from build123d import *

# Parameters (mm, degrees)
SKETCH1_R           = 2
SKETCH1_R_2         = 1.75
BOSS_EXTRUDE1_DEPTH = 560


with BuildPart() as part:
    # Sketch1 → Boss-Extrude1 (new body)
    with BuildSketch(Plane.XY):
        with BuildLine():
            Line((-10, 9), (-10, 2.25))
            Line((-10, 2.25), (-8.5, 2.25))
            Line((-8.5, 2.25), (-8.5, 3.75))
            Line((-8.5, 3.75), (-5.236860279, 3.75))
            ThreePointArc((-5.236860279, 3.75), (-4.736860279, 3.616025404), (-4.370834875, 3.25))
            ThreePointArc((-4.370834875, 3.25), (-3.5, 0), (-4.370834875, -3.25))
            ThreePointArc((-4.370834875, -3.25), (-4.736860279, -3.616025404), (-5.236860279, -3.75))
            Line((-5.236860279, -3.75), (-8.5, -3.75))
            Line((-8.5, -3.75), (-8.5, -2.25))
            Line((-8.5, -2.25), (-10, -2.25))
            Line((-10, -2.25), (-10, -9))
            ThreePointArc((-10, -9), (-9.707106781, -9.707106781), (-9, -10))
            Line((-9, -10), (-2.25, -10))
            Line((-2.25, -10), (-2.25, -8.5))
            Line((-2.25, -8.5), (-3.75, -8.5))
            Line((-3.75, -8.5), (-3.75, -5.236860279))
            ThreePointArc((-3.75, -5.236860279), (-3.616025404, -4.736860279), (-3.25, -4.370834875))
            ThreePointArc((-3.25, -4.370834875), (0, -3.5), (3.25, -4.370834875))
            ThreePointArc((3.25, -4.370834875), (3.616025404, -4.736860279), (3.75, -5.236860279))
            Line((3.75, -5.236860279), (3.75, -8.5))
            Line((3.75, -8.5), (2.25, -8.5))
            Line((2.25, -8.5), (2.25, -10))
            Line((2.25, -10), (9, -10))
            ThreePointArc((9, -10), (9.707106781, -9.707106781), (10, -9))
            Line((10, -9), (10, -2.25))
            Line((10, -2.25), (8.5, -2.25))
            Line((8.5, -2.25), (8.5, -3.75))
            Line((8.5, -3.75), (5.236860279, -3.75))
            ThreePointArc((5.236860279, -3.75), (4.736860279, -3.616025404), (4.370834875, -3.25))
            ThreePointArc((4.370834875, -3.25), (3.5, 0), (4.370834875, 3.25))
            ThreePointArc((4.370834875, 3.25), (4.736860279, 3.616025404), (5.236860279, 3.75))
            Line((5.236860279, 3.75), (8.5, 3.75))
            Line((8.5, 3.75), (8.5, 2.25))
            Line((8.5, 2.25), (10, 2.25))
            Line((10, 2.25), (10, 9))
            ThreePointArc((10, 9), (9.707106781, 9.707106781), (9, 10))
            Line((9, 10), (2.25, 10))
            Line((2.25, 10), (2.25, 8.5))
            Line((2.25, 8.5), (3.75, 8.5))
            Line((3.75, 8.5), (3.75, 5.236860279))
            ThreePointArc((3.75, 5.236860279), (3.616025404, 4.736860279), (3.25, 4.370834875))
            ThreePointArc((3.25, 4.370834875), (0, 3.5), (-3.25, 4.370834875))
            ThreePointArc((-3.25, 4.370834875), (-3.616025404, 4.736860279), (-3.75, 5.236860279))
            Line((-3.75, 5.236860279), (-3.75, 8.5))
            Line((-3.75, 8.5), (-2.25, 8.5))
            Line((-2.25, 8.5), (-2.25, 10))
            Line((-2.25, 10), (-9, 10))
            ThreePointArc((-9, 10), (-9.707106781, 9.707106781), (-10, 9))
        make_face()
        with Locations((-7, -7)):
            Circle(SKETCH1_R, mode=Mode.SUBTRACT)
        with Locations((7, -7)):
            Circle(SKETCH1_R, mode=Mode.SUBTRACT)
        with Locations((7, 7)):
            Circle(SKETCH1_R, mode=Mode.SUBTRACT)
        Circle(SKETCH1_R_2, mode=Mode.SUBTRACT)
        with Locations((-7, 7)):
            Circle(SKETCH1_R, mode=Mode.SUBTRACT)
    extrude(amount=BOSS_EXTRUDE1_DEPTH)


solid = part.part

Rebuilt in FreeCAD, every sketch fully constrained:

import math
import FreeCAD as App
import Part
import Sketcher
Q = App.Units.Quantity

doc = App.newDocument("Part")
body = doc.addObject("PartDesign::Body", "Body")

# Sketch on XY plane
sketch1 = body.newObject("Sketcher::SketchObject", "Sketch")
sketch1.AttachmentSupport = (doc.getObject("XY_Plane"), [""])
sketch1.MapMode = "FlatFace"
sketch1.addGeometry([
    Part.LineSegment(App.Vector(-10, 9, 0), App.Vector(-10, 2.2, 0)),  # 0
    Part.LineSegment(App.Vector(-10, 2.2, 0), App.Vector(-8.5, 2.2, 0)),  # 1
    Part.LineSegment(App.Vector(-8.5, 2.2, 0), App.Vector(-8.5, 3.8, 0)),  # 2
    Part.LineSegment(App.Vector(-8.5, 3.8, 0), App.Vector(-5.2, 3.8, 0)),  # 3
    Part.ArcOfCircle(Part.Circle(App.Vector(-5.2, 2.8, 0), App.Vector(0, 0, 1), 1), math.radians(30), math.radians(90)),  # 4
    Part.ArcOfCircle(Part.Circle(App.Vector(-10, 0, 0), App.Vector(0, 0, 1), 6.5), math.radians(-30), math.radians(30)),  # 5
    Part.ArcOfCircle(Part.Circle(App.Vector(-5.2, -2.8, 0), App.Vector(0, 0, 1), 1), math.radians(-90), math.radians(-30)),  # 6
    Part.LineSegment(App.Vector(-5.2, -3.8, 0), App.Vector(-8.5, -3.8, 0)),  # 7
    Part.LineSegment(App.Vector(-8.5, -3.8, 0), App.Vector(-8.5, -2.2, 0)),  # 8
    Part.LineSegment(App.Vector(-8.5, -2.2, 0), App.Vector(-10, -2.2, 0)),  # 9
    Part.LineSegment(App.Vector(-10, -2.2, 0), App.Vector(-10, -9, 0)),  # 10
    Part.ArcOfCircle(Part.Circle(App.Vector(-9, -9, 0), App.Vector(0, 0, 1), 1), math.radians(-180), math.radians(-90)),  # 11
    Part.LineSegment(App.Vector(-9, -10, 0), App.Vector(-2.2, -10, 0)),  # 12
    Part.LineSegment(App.Vector(-2.2, -10, 0), App.Vector(-2.2, -8.5, 0)),  # 13
    Part.LineSegment(App.Vector(-2.2, -8.5, 0), App.Vector(-3.8, -8.5, 0)),  # 14
    Part.LineSegment(App.Vector(-3.8, -8.5, 0), App.Vector(-3.8, -5.2, 0)),  # 15
    Part.ArcOfCircle(Part.Circle(App.Vector(-2.8, -5.2, 0), App.Vector(0, 0, 1), 1), math.radians(120), math.radians(180)),  # 16
    Part.ArcOfCircle(Part.Circle(App.Vector(0, -10, 0), App.Vector(0, 0, 1), 6.5), math.radians(60), math.radians(120)),  # 17
    Part.ArcOfCircle(Part.Circle(App.Vector(2.8, -5.2, 0), App.Vector(0, 0, 1), 1), math.radians(0), math.radians(60)),  # 18
    Part.LineSegment(App.Vector(3.8, -5.2, 0), App.Vector(3.8, -8.5, 0)),  # 19
    Part.LineSegment(App.Vector(3.8, -8.5, 0), App.Vector(2.2, -8.5, 0)),  # 20
    Part.LineSegment(App.Vector(2.2, -8.5, 0), App.Vector(2.2, -10, 0)),  # 21
    Part.LineSegment(App.Vector(2.2, -10, 0), App.Vector(9, -10, 0)),  # 22
    Part.ArcOfCircle(Part.Circle(App.Vector(9, -9, 0), App.Vector(0, 0, 1), 1), math.radians(-90), math.radians(0)),  # 23
    Part.LineSegment(App.Vector(10, -9, 0), App.Vector(10, -2.2, 0)),  # 24
    Part.LineSegment(App.Vector(10, -2.2, 0), App.Vector(8.5, -2.2, 0)),  # 25
    Part.LineSegment(App.Vector(8.5, -2.2, 0), App.Vector(8.5, -3.8, 0)),  # 26
    Part.LineSegment(App.Vector(8.5, -3.8, 0), App.Vector(5.2, -3.8, 0)),  # 27
    Part.ArcOfCircle(Part.Circle(App.Vector(5.2, -2.8, 0), App.Vector(0, 0, 1), 1), math.radians(-150), math.radians(-90)),  # 28
    Part.ArcOfCircle(Part.Circle(App.Vector(10, 0, 0), App.Vector(0, 0, 1), 6.5), math.radians(150), math.radians(210)),  # 29
    Part.ArcOfCircle(Part.Circle(App.Vector(5.2, 2.8, 0), App.Vector(0, 0, 1), 1), math.radians(90), math.radians(150)),  # 30
    Part.LineSegment(App.Vector(5.2, 3.8, 0), App.Vector(8.5, 3.8, 0)),  # 31
    Part.LineSegment(App.Vector(8.5, 3.8, 0), App.Vector(8.5, 2.2, 0)),  # 32
    Part.LineSegment(App.Vector(8.5, 2.2, 0), App.Vector(10, 2.2, 0)),  # 33
    Part.LineSegment(App.Vector(10, 2.2, 0), App.Vector(10, 9, 0)),  # 34
    Part.ArcOfCircle(Part.Circle(App.Vector(9, 9, 0), App.Vector(0, 0, 1), 1), math.radians(0), math.radians(90)),  # 35
    Part.LineSegment(App.Vector(9, 10, 0), App.Vector(2.2, 10, 0)),  # 36
    Part.LineSegment(App.Vector(2.2, 10, 0), App.Vector(2.2, 8.5, 0)),  # 37
    Part.LineSegment(App.Vector(2.2, 8.5, 0), App.Vector(3.8, 8.5, 0)),  # 38
    Part.LineSegment(App.Vector(3.8, 8.5, 0), App.Vector(3.8, 5.2, 0)),  # 39
    Part.ArcOfCircle(Part.Circle(App.Vector(2.8, 5.2, 0), App.Vector(0, 0, 1), 1), math.radians(-60), math.radians(0)),  # 40
    Part.ArcOfCircle(Part.Circle(App.Vector(0, 10, 0), App.Vector(0, 0, 1), 6.5), math.radians(-120), math.radians(-60)),  # 41
    Part.ArcOfCircle(Part.Circle(App.Vector(-2.8, 5.2, 0), App.Vector(0, 0, 1), 1), math.radians(180), math.radians(240)),  # 42
    Part.LineSegment(App.Vector(-3.8, 5.2, 0), App.Vector(-3.8, 8.5, 0)),  # 43
    Part.LineSegment(App.Vector(-3.8, 8.5, 0), App.Vector(-2.2, 8.5, 0)),  # 44
    Part.LineSegment(App.Vector(-2.2, 8.5, 0), App.Vector(-2.2, 10, 0)),  # 45
    Part.LineSegment(App.Vector(-2.2, 10, 0), App.Vector(-9, 10, 0)),  # 46
    Part.ArcOfCircle(Part.Circle(App.Vector(-9, 9, 0), App.Vector(0, 0, 1), 1), math.radians(90), math.radians(180)),  # 47
    Part.Circle(App.Vector(-7, -7, 0), App.Vector(0, 0, 1), 2),  # 48
    Part.Circle(App.Vector(7, -7, 0), App.Vector(0, 0, 1), 2),  # 49
    Part.Circle(App.Vector(-7, 7, 0), App.Vector(0, 0, 1), 2),  # 50
    Part.Circle(App.Vector(0, 0, 0), App.Vector(0, 0, 1), 1.8),  # 51
    Part.Circle(App.Vector(7, 7, 0), App.Vector(0, 0, 1), 2),  # 52
], False)
sketch1.addConstraint([
    Sketcher.Constraint("Coincident", 0, 2, 1, 1),
    Sketcher.Constraint("Coincident", 1, 2, 2, 1),
    Sketcher.Constraint("Coincident", 2, 2, 3, 1),
    Sketcher.Constraint("Tangent", 3, 2, 4, 2),
    Sketcher.Constraint("Tangent", 4, 1, 5, 2),
    Sketcher.Constraint("Tangent", 5, 1, 6, 2),
    Sketcher.Constraint("Tangent", 6, 1, 7, 1),
    Sketcher.Constraint("Coincident", 7, 2, 8, 1),
    Sketcher.Constraint("Coincident", 8, 2, 9, 1),
    Sketcher.Constraint("Coincident", 9, 2, 10, 1),
    Sketcher.Constraint("Tangent", 10, 2, 11, 1),
    Sketcher.Constraint("Tangent", 11, 2, 12, 1),
    Sketcher.Constraint("Coincident", 12, 2, 13, 1),
    Sketcher.Constraint("Coincident", 13, 2, 14, 1),
    Sketcher.Constraint("Coincident", 14, 2, 15, 1),
    Sketcher.Constraint("Tangent", 15, 2, 16, 2),
    Sketcher.Constraint("Tangent", 16, 1, 17, 2),
    Sketcher.Constraint("Tangent", 17, 1, 18, 2),
    Sketcher.Constraint("Tangent", 18, 1, 19, 1),
    Sketcher.Constraint("Coincident", 19, 2, 20, 1),
    Sketcher.Constraint("Coincident", 20, 2, 21, 1),
    Sketcher.Constraint("Coincident", 21, 2, 22, 1),
    Sketcher.Constraint("Tangent", 22, 2, 23, 1),
    Sketcher.Constraint("Tangent", 23, 2, 24, 1),
    Sketcher.Constraint("Coincident", 24, 2, 25, 1),
    Sketcher.Constraint("Coincident", 25, 2, 26, 1),
    Sketcher.Constraint("Coincident", 26, 2, 27, 1),
    Sketcher.Constraint("Tangent", 27, 2, 28, 2),
    Sketcher.Constraint("Tangent", 28, 1, 29, 2),
    Sketcher.Constraint("Tangent", 29, 1, 30, 2),
    Sketcher.Constraint("Tangent", 30, 1, 31, 1),
    Sketcher.Constraint("Coincident", 31, 2, 32, 1),
    Sketcher.Constraint("Coincident", 32, 2, 33, 1),
    Sketcher.Constraint("Coincident", 33, 2, 34, 1),
    Sketcher.Constraint("Tangent", 34, 2, 35, 1),
    Sketcher.Constraint("Tangent", 35, 2, 36, 1),
    Sketcher.Constraint("Coincident", 36, 2, 37, 1),
    Sketcher.Constraint("Coincident", 37, 2, 38, 1),
    Sketcher.Constraint("Coincident", 38, 2, 39, 1),
    Sketcher.Constraint("Tangent", 39, 2, 40, 2),
    Sketcher.Constraint("Tangent", 40, 1, 41, 2),
    Sketcher.Constraint("Tangent", 41, 1, 42, 2),
    Sketcher.Constraint("Tangent", 42, 1, 43, 1),
    Sketcher.Constraint("Coincident", 43, 2, 44, 1),
    Sketcher.Constraint("Coincident", 44, 2, 45, 1),
    Sketcher.Constraint("Coincident", 45, 2, 46, 1),
    Sketcher.Constraint("Tangent", 46, 2, 47, 1),
    Sketcher.Constraint("Tangent", 47, 2, 0, 1),
    Sketcher.Constraint("Vertical", 0),
    Sketcher.Constraint("Horizontal", 1),
    Sketcher.Constraint("Vertical", 2),
    Sketcher.Constraint("Horizontal", 3),
    Sketcher.Constraint("Horizontal", 7),
    Sketcher.Constraint("Vertical", 8),
    Sketcher.Constraint("Horizontal", 9),
    Sketcher.Constraint("Vertical", 10),
    Sketcher.Constraint("Horizontal", 12),
    Sketcher.Constraint("Vertical", 13),
    Sketcher.Constraint("Horizontal", 14),
    Sketcher.Constraint("Vertical", 15),
    Sketcher.Constraint("Vertical", 19),
    Sketcher.Constraint("Horizontal", 20),
    Sketcher.Constraint("Vertical", 21),
    Sketcher.Constraint("Horizontal", 22),
    Sketcher.Constraint("Vertical", 24),
    Sketcher.Constraint("Horizontal", 25),
    Sketcher.Constraint("Vertical", 26),
    Sketcher.Constraint("Horizontal", 27),
    Sketcher.Constraint("Horizontal", 31),
    Sketcher.Constraint("Vertical", 32),
    Sketcher.Constraint("Horizontal", 33),
    Sketcher.Constraint("Vertical", 34),
    Sketcher.Constraint("Horizontal", 36),
    Sketcher.Constraint("Vertical", 37),
    Sketcher.Constraint("Horizontal", 38),
    Sketcher.Constraint("Vertical", 39),
    Sketcher.Constraint("Vertical", 43),
    Sketcher.Constraint("Horizontal", 44),
    Sketcher.Constraint("Vertical", 45),
    Sketcher.Constraint("Horizontal", 46),
    Sketcher.Constraint("Coincident", 51, 3, -1, 1),
    Sketcher.Constraint("Equal", 4, 6),
    Sketcher.Constraint("Equal", 6, 11),
    Sketcher.Constraint("Equal", 11, 16),
    Sketcher.Constraint("Equal", 5, 17),
    Sketcher.Constraint("Equal", 16, 18),
    Sketcher.Constraint("Equal", 18, 23),
    Sketcher.Constraint("Equal", 23, 28),
    Sketcher.Constraint("Equal", 17, 29),
    Sketcher.Constraint("Equal", 28, 30),
    Sketcher.Constraint("Equal", 30, 35),
    Sketcher.Constraint("Equal", 35, 40),
    Sketcher.Constraint("Equal", 29, 41),
    Sketcher.Constraint("Equal", 40, 42),
    Sketcher.Constraint("Equal", 42, 47),
    Sketcher.Constraint("Equal", 48, 49),
    Sketcher.Constraint("Equal", 49, 50),
    Sketcher.Constraint("Equal", 50, 52),
    Sketcher.Constraint("Symmetric", 4, 3, 28, 3, -1, 1),
    Sketcher.Constraint("Symmetric", 6, 3, 30, 3, -1, 1),
    Sketcher.Constraint("Symmetric", 11, 3, 35, 3, -1, 1),
    Sketcher.Constraint("Symmetric", 16, 3, 40, 3, -1, 1),
    Sketcher.Constraint("Symmetric", 18, 3, 42, 3, -1, 1),
    Sketcher.Constraint("Symmetric", 23, 3, 47, 3, -1, 1),
    Sketcher.Constraint("Symmetric", 49, 3, 50, 3, -1, 1),
    Sketcher.Constraint("Symmetric", 48, 3, 52, 3, -1, 1),
    Sketcher.Constraint("Symmetric", 1, 2, 25, 2, -1, 1),
    Sketcher.Constraint("Symmetric", 8, 2, 32, 2, -1, 1),
    Sketcher.Constraint("Symmetric", 13, 2, 37, 2, -1, 1),
    Sketcher.Constraint("Symmetric", 20, 2, 44, 2, -1, 1),
    Sketcher.Constraint("Symmetric", 16, 3, 18, 3, -2),
    Sketcher.Constraint("Symmetric", 11, 3, 23, 3, -2),
    Sketcher.Constraint("Symmetric", 6, 3, 28, 3, -2),
    Sketcher.Constraint("Symmetric", 48, 3, 49, 3, -2),
    Sketcher.Constraint("Symmetric", 13, 2, 20, 2, -2),
    Sketcher.Constraint("Symmetric", 8, 2, 25, 2, -2),
    Sketcher.Constraint("Horizontal", 17, 3, 11, 2),
    Sketcher.Constraint("Vertical", 5, 3, 0, 2),
    Sketcher.Constraint("Equal", 9, 14),
    Sketcher.Constraint("Equal", 46, 0),
    Sketcher.Constraint("Equal", 44, 2),
    Sketcher.Constraint("Equal", 8, 13),
    Sketcher.Constraint("Equal", 31, 15),
    Sketcher.Constraint("Diameter", 48, Q("4 mm")),
    Sketcher.Constraint("Radius", 4, Q("1 mm")),
    Sketcher.Constraint("Diameter", 51, Q("3.5 mm")),
    Sketcher.Constraint("Radius", 5, Q("6.5 mm")),
    Sketcher.Constraint("DistanceX", 1, 1, 1, 2, Q("1.5 mm")),
    Sketcher.Constraint("DistanceX", 5, 3, -1, 1, Q("10 mm")),
    Sketcher.Constraint("DistanceX", 48, 3, -1, 1, Q("7 mm")),
    Sketcher.Constraint("DistanceY", 48, 3, -1, 1, Q("7 mm")),
    Sketcher.Constraint("DistanceX", 12, 1, 12, 2, Q("6.75 mm")),
])
pad1 = body.newObject("PartDesign::Pad", "Pad")
pad1.Profile = sketch1
pad1.Length = 560

doc.recompute()
